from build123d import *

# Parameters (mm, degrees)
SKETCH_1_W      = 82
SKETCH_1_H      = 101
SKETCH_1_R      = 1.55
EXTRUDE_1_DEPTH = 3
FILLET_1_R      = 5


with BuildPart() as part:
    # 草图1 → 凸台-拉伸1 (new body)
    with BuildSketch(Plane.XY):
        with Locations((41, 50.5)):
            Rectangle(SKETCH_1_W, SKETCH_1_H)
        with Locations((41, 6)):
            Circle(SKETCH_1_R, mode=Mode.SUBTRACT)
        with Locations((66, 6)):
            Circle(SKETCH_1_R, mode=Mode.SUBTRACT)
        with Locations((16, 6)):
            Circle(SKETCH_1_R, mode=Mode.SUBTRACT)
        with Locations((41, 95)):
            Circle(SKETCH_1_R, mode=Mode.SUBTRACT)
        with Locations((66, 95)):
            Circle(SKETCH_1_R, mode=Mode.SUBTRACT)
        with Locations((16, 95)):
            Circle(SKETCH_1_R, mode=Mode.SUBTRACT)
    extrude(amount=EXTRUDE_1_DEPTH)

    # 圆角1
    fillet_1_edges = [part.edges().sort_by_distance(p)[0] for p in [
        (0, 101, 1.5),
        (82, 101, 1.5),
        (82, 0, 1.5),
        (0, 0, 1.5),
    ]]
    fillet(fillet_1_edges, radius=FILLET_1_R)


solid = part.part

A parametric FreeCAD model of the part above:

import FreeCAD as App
import Part
import Sketcher
from FreeCAD import Vector


def edges_at(feature, points):
    """Names of the edges that pass closest to the given points."""
    edges = feature.Shape.Edges
    near = lambda p: min(range(len(edges)), key=lambda i: edges[i].distToShape(Part.Vertex(*p))[0])
    return sorted({f"Edge{near(p) + 1}" for p in points})


def add_polygon(sketch, points):
    """Adds a closed chain of lines whose ends are joined by coincident constraints."""
    first, n = sketch.GeometryCount, len(points)
    for a, b in zip(points, points[1:] + points[:1]):
        sketch.addGeometry(Part.LineSegment(App.Vector(*a, 0), App.Vector(*b, 0)), False)
    for i in range(n):
        sketch.addConstraint(Sketcher.Constraint("Coincident", first + i, 2, first + (i + 1) % n, 1))

doc = App.newDocument("Part")
body = doc.addObject("PartDesign::Body", "Body")

sketch1 = body.newObject("Sketcher::SketchObject", "Sketch")
sketch1.AttachmentSupport = (doc.getObject("XY_Plane"), [""])
sketch1.MapMode = "FlatFace"
add_polygon(sketch1, [(0, 101), (0, 0), (82, 0), (82, 101)])
sketch1.addGeometry(Part.Circle(Vector(16, 6, 0), Vector(0, 0, 1), 1.6), False)
sketch1.addGeometry(Part.Circle(Vector(41, 6, 0), Vector(0, 0, 1), 1.6), False)
sketch1.addGeometry(Part.Circle(Vector(66, 6, 0), Vector(0, 0, 1), 1.6), False)
sketch1.addGeometry(Part.Circle(Vector(16, 95, 0), Vector(0, 0, 1), 1.6), False)
sketch1.addGeometry(Part.Circle(Vector(41, 95, 0), Vector(0, 0, 1), 1.6), False)
sketch1.addGeometry(Part.Circle(Vector(66, 95, 0), Vector(0, 0, 1), 1.6), False)
sketch1.addConstraint([
    Sketcher.Constraint("Vertical", 0),
    Sketcher.Constraint("Horizontal", 1),
    Sketcher.Constraint("Vertical", 2),
    Sketcher.Constraint("Horizontal", 3),
    Sketcher.Constraint("Coincident", 0, 2, -1, 1),
    Sketcher.Constraint("Equal", 4, 5),
    Sketcher.Constraint("Equal", 5, 6),
    Sketcher.Constraint("Equal", 6, 7),
    Sketcher.Constraint("Equal", 7, 8),
    Sketcher.Constraint("Equal", 8, 9),
    Sketcher.Constraint("Horizontal", 4, 3, 5, 3),
    Sketcher.Constraint("Horizontal", 5, 3, 6, 3),
    Sketcher.Constraint("Horizontal", 7, 3, 8, 3),
    Sketcher.Constraint("Horizontal", 8, 3, 9, 3),
    Sketcher.Constraint("Vertical", 4, 3, 7, 3),
    Sketcher.Constraint("Vertical", 5, 3, 8, 3),
    Sketcher.Constraint("Vertical", 6, 3, 9, 3),
    Sketcher.Constraint("Diameter", 4, 3.1),
    Sketcher.Constraint("DistanceX", 1, 1, 1, 2, 82.0),
    Sketcher.Constraint("DistanceY", 0, 2, 0, 1, 101.0),
    Sketcher.Constraint("DistanceX", -1, 1, 4, 3, 16.0),
    Sketcher.Constraint("DistanceY", -1, 1, 4, 3, 6.0),
    Sketcher.Constraint("DistanceX", -1, 1, 5, 3, 41.0),
    Sketcher.Constraint("DistanceX", -1, 1, 6, 3, 66.0),
    Sketcher.Constraint("DistanceY", -1, 1, 7, 3, 95.0),
])
pad1 = body.newObject("PartDesign::Pad", "Pad")
pad1.Profile = sketch1
pad1.Length = 3
doc.recompute()

fillet = body.newObject("PartDesign::Fillet", "Fillet")
fillet.Base = (pad1, edges_at(pad1, [
    (0, 101, 1.5),
    (82, 101, 1.5),
    (82, 0, 1.5),
    (0, 0, 1.5),
]))
fillet.Radius = 5

doc.recompute()
